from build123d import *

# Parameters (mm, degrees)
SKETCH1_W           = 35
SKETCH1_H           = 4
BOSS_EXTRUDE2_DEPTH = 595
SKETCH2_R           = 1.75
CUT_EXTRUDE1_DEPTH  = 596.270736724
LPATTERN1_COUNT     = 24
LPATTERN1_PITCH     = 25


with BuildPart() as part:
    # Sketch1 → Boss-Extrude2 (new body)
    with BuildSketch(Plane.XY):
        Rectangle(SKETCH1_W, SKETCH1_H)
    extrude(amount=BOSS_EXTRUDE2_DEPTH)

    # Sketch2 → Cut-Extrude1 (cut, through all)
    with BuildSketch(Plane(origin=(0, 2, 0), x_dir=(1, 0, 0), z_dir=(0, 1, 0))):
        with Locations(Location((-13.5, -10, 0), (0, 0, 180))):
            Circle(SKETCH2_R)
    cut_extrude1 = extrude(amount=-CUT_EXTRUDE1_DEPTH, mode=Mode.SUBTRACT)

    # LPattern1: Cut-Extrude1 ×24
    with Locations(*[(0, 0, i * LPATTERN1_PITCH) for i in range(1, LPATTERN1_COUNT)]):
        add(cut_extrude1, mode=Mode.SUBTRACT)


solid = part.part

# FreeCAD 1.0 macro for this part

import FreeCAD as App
import Part
import Sketcher

V = App.Vector


def add_polygon(sketch, points):
    """Adds a closed chain of lines whose ends are joined by coincident constraints."""
    first, n = sketch.GeometryCount, len(points)
    for a, b in zip(points, points[1:] + points[:1]):
        sketch.addGeometry(Part.LineSegment(App.Vector(*a, 0), App.Vector(*b, 0)), False)
    for i in range(n):
        sketch.addConstraint(Sketcher.Constraint("Coincident", first + i, 2, first + (i + 1) % n, 1))

doc = App.newDocument("Part")
body = doc.addObject("PartDesign::Body", "Body")

sketch1 = body.newObject("Sketcher::SketchObject", "Sketch")
sketch1.AttachmentSupport = (doc.getObject("XY_Plane"), [""])
sketch1.MapMode = "FlatFace"
add_polygon(sketch1, [(-17.5, 2), (-17.5, -2), (17.5, -2), (17.5, 2)])
sketch1.addConstraint([
    Sketcher.Constraint("Vertical", 0),
    Sketcher.Constraint("Horizontal", 1),
    Sketcher.Constraint("Vertical", 2),
    Sketcher.Constraint("Horizontal", 3),
    Sketcher.Constraint("Symmetric", 0, 2, 2, 2, -1, 1),
    Sketcher.Constraint("DistanceX", 1, 1, 1, 2, 35.0),
    Sketcher.Constraint("DistanceY", 0, 2, 0, 1, 4.0),
])
pad1 = body.newObject("PartDesign::Pad", "Pad")
pad1.Profile = sketch1
pad1.Length = 595

sketch2 = body.newObject("Sketcher::SketchObject", "Sketch001")
sketch2.AttachmentSupport = (doc.getObject("XZ_Plane"), [""])
sketch2.MapMode = "FlatFace"
sketch2.AttachmentOffset = App.Placement(V(0, 0, -2), App.Rotation())
sketch2.addGeometry(Part.Circle(V(-13.5, 10, 0), V(0, 0, 1), 1.8), False)
sketch2.addConstraint([
    Sketcher.Constraint("Diameter", 0, 3.5),
    Sketcher.Constraint("DistanceY", -1, 1, 0, 3, 10.0),
    Sketcher.Constraint("DistanceX", 0, 3, -1, 1, 13.5),
])
pocket1 = body.newObject("PartDesign::Pocket", "Pocket")
pocket1.Profile = sketch2
pocket1.Type = "ThroughAll"
pocket1.Reversed = True
doc.recompute()

linearpattern = body.newObject("PartDesign::LinearPattern", "LinearPattern")
linearpattern.Originals = [pocket1]
linearpattern.Direction = (doc.getObject("Z_Axis"), [""])
linearpattern.Mode = "offset"
linearpattern.Offset = 25
linearpattern.Occurrences = 24
body.Tip = linearpattern

doc.recompute()
